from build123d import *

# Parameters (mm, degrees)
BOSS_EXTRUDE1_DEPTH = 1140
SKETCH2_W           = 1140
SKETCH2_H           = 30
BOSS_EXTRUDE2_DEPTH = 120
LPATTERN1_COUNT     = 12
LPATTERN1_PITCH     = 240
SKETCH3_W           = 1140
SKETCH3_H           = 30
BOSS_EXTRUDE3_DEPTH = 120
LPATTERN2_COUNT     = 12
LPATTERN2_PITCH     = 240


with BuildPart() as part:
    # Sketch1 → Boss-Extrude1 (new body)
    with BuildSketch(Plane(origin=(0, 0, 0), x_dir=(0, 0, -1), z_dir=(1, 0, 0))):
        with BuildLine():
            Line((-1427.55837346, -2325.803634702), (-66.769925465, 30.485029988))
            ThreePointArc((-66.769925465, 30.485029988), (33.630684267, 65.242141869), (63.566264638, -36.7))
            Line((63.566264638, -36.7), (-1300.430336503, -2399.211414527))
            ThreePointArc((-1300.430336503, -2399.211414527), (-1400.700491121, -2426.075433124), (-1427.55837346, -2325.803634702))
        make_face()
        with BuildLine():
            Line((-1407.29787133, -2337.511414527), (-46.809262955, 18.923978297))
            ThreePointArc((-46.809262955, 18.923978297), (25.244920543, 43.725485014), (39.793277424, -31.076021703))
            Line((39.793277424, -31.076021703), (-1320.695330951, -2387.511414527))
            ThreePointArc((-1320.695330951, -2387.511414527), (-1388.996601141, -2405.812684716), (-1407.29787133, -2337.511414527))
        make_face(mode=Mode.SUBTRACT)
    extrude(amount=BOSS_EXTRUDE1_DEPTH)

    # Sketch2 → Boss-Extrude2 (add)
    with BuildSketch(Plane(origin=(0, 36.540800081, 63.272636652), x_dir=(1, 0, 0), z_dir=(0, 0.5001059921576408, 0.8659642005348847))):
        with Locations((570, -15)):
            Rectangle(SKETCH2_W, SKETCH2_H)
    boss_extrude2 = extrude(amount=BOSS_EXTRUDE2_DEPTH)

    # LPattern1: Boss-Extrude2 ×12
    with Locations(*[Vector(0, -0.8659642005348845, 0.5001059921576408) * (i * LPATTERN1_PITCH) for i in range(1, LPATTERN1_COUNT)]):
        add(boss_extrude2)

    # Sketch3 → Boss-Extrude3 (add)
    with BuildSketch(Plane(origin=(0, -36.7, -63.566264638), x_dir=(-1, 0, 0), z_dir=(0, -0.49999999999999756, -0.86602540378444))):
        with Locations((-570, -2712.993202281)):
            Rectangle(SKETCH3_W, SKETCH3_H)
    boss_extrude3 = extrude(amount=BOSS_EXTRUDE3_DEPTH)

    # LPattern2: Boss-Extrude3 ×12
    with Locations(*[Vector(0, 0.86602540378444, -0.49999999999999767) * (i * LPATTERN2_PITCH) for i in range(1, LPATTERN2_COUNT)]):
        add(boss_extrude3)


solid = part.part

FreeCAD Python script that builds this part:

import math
import FreeCAD as App
import Part
import Sketcher
Q = App.Units.Quantity

doc = App.newDocument("Part")
body = doc.addObject("PartDesign::Body", "Body")

sketch1 = body.newObject("Sketcher::SketchObject", "Sketch")
sketch1.AttachmentSupport = (doc.getObject("YZ_Plane"), [""])
sketch1.MapMode = "FlatFace"
sketch1.addGeometry(Part.LineSegment(App.Vector(30, 67, 0), App.Vector(-2326, 1428, 0)), False)
sketch1.addGeometry(Part.ArcOfCircle(Part.Circle(App.Vector(-2363, 1364, 0), App.Vector(0, 0, 1), 73), math.radians(60), math.radians(240)), False)
sketch1.addGeometry(Part.LineSegment(App.Vector(-2399, 1300, 0), App.Vector(-37, -64, 0)), False)
sketch1.addGeometry(Part.ArcOfCircle(Part.Circle(App.Vector(0, 0, 0), App.Vector(0, 0, 1), 73), math.radians(-120), math.radians(65)), False)
sketch1.addGeometry(Part.LineSegment(App.Vector(-2338, 1407, 0), App.Vector(19, 47, 0)), False)
sketch1.addGeometry(Part.ArcOfCircle(Part.Circle(App.Vector(0, 0, 0), App.Vector(0, 0, 1), 50), math.radians(-128), math.radians(68)), False)
sketch1.addGeometry(Part.LineSegment(App.Vector(-31, -40, 0), App.Vector(-2388, 1321, 0)), False)
sketch1.addGeometry(Part.ArcOfCircle(Part.Circle(App.Vector(-2363, 1364, 0), App.Vector(0, 0, 1), 50), math.radians(60), math.radians(240)), False)
sketch1.addConstraint(Sketcher.Constraint("Tangent", 0, 2, 1, 1))
sketch1.addConstraint(Sketcher.Constraint("Tangent", 1, 2, 2, 1))
sketch1.addConstraint(Sketcher.Constraint("Tangent", 2, 2, 3, 1))
sketch1.addConstraint(Sketcher.Constraint("Coincident", 3, 2, 0, 1))
sketch1.addConstraint(Sketcher.Constraint("Coincident", 4, 2, 5, 2))
sketch1.addConstraint(Sketcher.Constraint("Coincident", 5, 1, 6, 1))
sketch1.addConstraint(Sketcher.Constraint("Tangent", 6, 2, 7, 2))
sketch1.addConstraint(Sketcher.Constraint("Tangent", 7, 1, 4, 1))
sketch1.addConstraint(Sketcher.Constraint("Coincident", 3, 3, -1, 1))
sketch1.addConstraint(Sketcher.Constraint("Coincident", 5, 3, -1, 1))
sketch1.addConstraint(Sketcher.Constraint("Coincident", 7, 3, 1, 3))
sketch1.addConstraint(Sketcher.Constraint("Equal", 1, 3))
sketch1.addConstraint(Sketcher.Constraint("Parallel", 2, 4))
sketch1.addConstraint(Sketcher.Constraint("Parallel", 4, 6))
sketch1.addConstraint(Sketcher.Constraint("Radius", 7, Q("50 mm")))
sketch1.addConstraint(Sketcher.Constraint("Radius", 1, Q("73.4 mm")))
sketch1.addConstraint(Sketcher.Constraint("Angle", 2, Q("-30 deg")))
sketch1.addConstraint(Sketcher.Constraint("Radius", 5, Q("50.489841 mm")))
sketch1.addConstraint(Sketcher.Constraint("DistanceY", -1, 1, 1, 3, Q("1363.996601 mm")))
sketch1.addConstraint(Sketcher.Constraint("DistanceX", -1, 1, 3, 2, Q("30.48503 mm")))
pad1 = body.newObject("PartDesign::Pad", "Pad")
pad1.Profile = sketch1
pad1.Length = 1140

sketch2 = body.newObject("Sketcher::SketchObject", "Sketch001")
sketch2.Placement = App.Placement(App.Vector(0, 36.5408, 63.272637), App.Rotation(App.Vector(1, 0, 0), App.Vector(0, 0.865964201, -0.500105992), App.Vector(0, 0.500105992, 0.865964201), "ZXY"))
sketch2.addGeometry(Part.LineSegment(App.Vector(0, 0, 0), App.Vector(0, -30, 0)), False)
sketch2.addGeometry(Part.LineSegment(App.Vector(0, -30, 0), App.Vector(1140, -30, 0)), False)
sketch2.addGeometry(Part.LineSegment(App.Vector(1140, -30, 0), App.Vector(1140, 0, 0)), False)
sketch2.addGeometry(Part.LineSegment(App.Vector(1140, 0, 0), App.Vector(0, 0, 0)), False)
sketch2.addConstraint(Sketcher.Constraint("Coincident", 0, 2, 1, 1))
sketch2.addConstraint(Sketcher.Constraint("Coincident", 1, 2, 2, 1))
sketch2.addConstraint(Sketcher.Constraint("Coincident", 2, 2, 3, 1))
sketch2.addConstraint(Sketcher.Constraint("Coincident", 3, 2, 0, 1))
sketch2.addConstraint(Sketcher.Constraint("Vertical", 0))
sketch2.addConstraint(Sketcher.Constraint("Horizontal", 1))
sketch2.addConstraint(Sketcher.Constraint("Vertical", 2))
sketch2.addConstraint(Sketcher.Constraint("Horizontal", 3))
sketch2.addConstraint(Sketcher.Constraint("Coincident", 3, 2, -1, 1))
sketch2.addConstraint(Sketcher.Constraint("DistanceX", 1, 1, 1, 2, Q("1140 mm")))
sketch2.addConstraint(Sketcher.Constraint("DistanceY", 0, 2, 0, 1, Q("30 mm")))
pad2 = body.newObject("PartDesign::Pad", "Pad001")
pad2.Profile = sketch2
pad2.Length = 120
doc.recompute()

datumline = body.newObject("PartDesign::Line", "DatumLine")
datumline.Placement = App.Placement(App.Vector(0, 0, 0), App.Rotation(App.Vector(0, 0, 1), App.Vector(0, -0.865964201, 0.500105992)))
linearpattern = body.newObject("PartDesign::LinearPattern", "LinearPattern")
linearpattern.Originals = [pad2]
linearpattern.Direction = (datumline, [""])
linearpattern.Mode = "offset"
linearpattern.Offset = 240
linearpattern.Occurrences = 12
body.Tip = linearpattern

sketch3 = body.newObject("Sketcher::SketchObject", "Sketch002")
sketch3.Placement = App.Placement(App.Vector(0, -36.7, -63.566265), App.Rotation(App.Vector(-1, 0, 0), App.Vector(0, 0.866025404, -0.5), App.Vector(0, -0.5, -0.866025404), "ZXY"))
sketch3.addGeometry(Part.LineSegment(App.Vector(-1140, -2698, 0), App.Vector(-1140, -2728, 0)), False)
sketch3.addGeometry(Part.LineSegment(App.Vector(-1140, -2728, 0), App.Vector(0, -2728, 0)), False)
sketch3.addGeometry(Part.LineSegment(App.Vector(0, -2728, 0), App.Vector(0, -2698, 0)), False)
sketch3.addGeometry(Part.LineSegment(App.Vector(0, -2698, 0), App.Vector(-1140, -2698, 0)), False)
sketch3.addConstraint(Sketcher.Constraint("Coincident", 0, 2, 1, 1))
sketch3.addConstraint(Sketcher.Constraint("Coincident", 1, 2, 2, 1))
sketch3.addConstraint(Sketcher.Constraint("Coincident", 2, 2, 3, 1))
sketch3.addConstraint(Sketcher.Constraint("Coincident", 3, 2, 0, 1))
sketch3.addConstraint(Sketcher.Constraint("Vertical", 0))
sketch3.addConstraint(Sketcher.Constraint("Horizontal", 1))
sketch3.addConstraint(Sketcher.Constraint("Vertical", 2))
sketch3.addConstraint(Sketcher.Constraint("Horizontal", 3))
sketch3.addConstraint(Sketcher.Constraint("PointOnObject", 1, 2, -2))
sketch3.addConstraint(Sketcher.Constraint("DistanceX", 1, 1, 1, 2, Q("1140 mm")))
sketch3.addConstraint(Sketcher.Constraint("DistanceY", 0, 2, 0, 1, Q("30 mm")))
sketch3.addConstraint(Sketcher.Constraint("DistanceY", 0, 2, -1, 1, Q("2727.993203 mm")))
pad3 = body.newObject("PartDesign::Pad", "Pad002")
pad3.Profile = sketch3
pad3.Length = 120
doc.recompute()

datumline2 = body.newObject("PartDesign::Line", "DatumLine001")
datumline2.Placement = App.Placement(App.Vector(0, 0, 0), App.Rotation(App.Vector(0, 0, 1), App.Vector(0, 0.866025404, -0.5)))
linearpattern2 = body.newObject("PartDesign::LinearPattern", "LinearPattern001")
linearpattern2.Originals = [pad3]
linearpattern2.Direction = (datumline2, [""])
linearpattern2.Mode = "offset"
linearpattern2.Offset = 240
linearpattern2.Occurrences = 12
body.Tip = linearpattern2

doc.recompute()
